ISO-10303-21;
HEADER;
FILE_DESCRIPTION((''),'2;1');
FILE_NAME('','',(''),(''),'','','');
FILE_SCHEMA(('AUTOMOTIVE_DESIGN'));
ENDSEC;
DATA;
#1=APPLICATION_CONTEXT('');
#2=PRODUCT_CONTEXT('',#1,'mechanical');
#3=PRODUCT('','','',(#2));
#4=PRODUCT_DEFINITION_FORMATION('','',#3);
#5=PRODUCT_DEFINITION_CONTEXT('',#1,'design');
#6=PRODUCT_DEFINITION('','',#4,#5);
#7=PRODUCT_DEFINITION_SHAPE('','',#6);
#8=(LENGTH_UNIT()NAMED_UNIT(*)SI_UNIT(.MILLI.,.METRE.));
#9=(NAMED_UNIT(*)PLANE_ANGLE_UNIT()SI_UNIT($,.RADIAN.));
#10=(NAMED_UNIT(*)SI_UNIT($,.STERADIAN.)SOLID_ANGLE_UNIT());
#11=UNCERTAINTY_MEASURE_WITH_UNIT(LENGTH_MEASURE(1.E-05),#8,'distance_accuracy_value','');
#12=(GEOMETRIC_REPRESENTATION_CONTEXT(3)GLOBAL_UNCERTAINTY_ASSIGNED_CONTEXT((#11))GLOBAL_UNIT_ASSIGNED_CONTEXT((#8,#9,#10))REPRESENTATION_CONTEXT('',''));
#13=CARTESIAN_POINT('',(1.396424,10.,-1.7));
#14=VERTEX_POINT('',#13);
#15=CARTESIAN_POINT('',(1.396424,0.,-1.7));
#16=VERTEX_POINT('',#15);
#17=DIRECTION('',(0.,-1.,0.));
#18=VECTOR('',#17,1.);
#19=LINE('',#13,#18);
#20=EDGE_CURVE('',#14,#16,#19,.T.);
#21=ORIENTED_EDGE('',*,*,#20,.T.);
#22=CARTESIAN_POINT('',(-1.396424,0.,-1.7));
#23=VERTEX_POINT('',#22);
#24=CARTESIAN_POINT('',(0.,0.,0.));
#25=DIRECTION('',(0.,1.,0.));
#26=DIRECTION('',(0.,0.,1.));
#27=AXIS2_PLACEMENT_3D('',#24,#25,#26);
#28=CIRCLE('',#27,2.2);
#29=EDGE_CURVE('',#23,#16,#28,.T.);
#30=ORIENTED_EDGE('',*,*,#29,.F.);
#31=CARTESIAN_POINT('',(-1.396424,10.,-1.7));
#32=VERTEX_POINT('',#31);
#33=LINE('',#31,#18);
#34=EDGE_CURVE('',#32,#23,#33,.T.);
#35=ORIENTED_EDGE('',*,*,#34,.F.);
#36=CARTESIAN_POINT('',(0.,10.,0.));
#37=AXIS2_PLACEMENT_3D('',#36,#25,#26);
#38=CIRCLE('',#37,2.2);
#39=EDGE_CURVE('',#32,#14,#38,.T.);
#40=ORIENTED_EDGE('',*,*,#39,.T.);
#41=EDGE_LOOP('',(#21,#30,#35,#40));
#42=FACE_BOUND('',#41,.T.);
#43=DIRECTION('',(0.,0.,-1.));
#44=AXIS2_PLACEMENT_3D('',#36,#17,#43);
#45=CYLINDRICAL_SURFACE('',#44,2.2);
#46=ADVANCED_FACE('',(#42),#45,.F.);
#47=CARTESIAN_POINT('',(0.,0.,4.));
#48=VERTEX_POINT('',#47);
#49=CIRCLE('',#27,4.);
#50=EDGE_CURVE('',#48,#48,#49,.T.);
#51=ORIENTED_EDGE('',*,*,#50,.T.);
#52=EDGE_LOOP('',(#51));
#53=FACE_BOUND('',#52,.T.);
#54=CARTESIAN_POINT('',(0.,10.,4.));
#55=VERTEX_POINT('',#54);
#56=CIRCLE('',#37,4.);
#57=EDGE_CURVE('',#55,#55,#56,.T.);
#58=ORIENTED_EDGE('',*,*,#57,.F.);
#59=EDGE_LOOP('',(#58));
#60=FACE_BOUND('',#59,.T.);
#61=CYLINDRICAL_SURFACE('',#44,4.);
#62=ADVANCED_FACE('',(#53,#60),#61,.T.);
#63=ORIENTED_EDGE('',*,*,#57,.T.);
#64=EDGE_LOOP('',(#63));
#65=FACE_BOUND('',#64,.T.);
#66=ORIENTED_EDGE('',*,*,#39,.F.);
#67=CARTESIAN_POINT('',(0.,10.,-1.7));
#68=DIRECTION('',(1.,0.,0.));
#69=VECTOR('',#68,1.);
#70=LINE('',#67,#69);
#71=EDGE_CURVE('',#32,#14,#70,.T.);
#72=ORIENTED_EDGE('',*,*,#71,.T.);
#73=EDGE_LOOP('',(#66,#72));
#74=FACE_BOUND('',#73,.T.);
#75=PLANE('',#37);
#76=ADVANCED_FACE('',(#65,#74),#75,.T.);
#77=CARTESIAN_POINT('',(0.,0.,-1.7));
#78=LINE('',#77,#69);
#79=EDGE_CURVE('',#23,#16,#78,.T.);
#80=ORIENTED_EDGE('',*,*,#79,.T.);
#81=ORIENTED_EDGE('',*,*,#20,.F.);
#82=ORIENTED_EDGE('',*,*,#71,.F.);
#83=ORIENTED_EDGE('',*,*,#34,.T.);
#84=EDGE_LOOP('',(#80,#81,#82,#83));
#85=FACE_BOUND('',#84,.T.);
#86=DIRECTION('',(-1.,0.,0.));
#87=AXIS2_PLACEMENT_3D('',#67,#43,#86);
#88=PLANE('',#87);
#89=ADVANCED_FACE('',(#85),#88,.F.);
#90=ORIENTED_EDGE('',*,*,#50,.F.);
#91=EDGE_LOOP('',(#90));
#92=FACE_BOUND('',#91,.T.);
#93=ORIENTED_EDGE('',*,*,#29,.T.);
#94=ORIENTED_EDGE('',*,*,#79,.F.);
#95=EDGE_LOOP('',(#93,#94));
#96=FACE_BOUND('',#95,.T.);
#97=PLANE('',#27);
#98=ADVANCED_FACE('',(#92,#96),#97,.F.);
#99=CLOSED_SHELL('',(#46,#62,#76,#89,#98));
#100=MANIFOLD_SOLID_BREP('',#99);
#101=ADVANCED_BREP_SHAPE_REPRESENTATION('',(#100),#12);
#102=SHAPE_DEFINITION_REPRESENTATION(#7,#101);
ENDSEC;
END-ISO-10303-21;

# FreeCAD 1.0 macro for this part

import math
import FreeCAD as App
import Part
import Sketcher
from FreeCAD import Vector

doc = App.newDocument("Part")
body = doc.addObject("PartDesign::Body", "Body")

# Sketch on XZ plane
sketch1 = body.newObject("Sketcher::SketchObject", "Sketch")
sketch1.AttachmentSupport = (doc.getObject("XZ_Plane"), [""])
sketch1.MapMode = "FlatFace"
sketch1.addGeometry([
    Part.Circle(Vector(0, 0, 0), Vector(0, 0, 1), 4),
    Part.ArcOfCircle(Part.Circle(Vector(0, 0, 0), Vector(0, 0, 1), 2.2), math.radians(-51), math.radians(231)),
    Part.LineSegment(Vector(-1.4, -1.7, 0), Vector(1.4, -1.7, 0)),
], False)
sketch1.addConstraint([
    Sketcher.Constraint("Coincident", 1, 1, 2, 2),
    Sketcher.Constraint("Coincident", 2, 1, 1, 2),
    Sketcher.Constraint("Horizontal", 2),
    Sketcher.Constraint("Coincident", 0, 3, -1, 1),
    Sketcher.Constraint("Coincident", 1, 3, -1, 1),
    Sketcher.Constraint("Diameter", 0, 8.0),
    Sketcher.Constraint("Radius", 1, 2.2),
    Sketcher.Constraint("DistanceY", 1, 1, -1, 1, 1.7),
])
pad1 = body.newObject("PartDesign::Pad", "Pad")
pad1.Profile = sketch1
pad1.Length = 10
pad1.Reversed = True

doc.recompute()
